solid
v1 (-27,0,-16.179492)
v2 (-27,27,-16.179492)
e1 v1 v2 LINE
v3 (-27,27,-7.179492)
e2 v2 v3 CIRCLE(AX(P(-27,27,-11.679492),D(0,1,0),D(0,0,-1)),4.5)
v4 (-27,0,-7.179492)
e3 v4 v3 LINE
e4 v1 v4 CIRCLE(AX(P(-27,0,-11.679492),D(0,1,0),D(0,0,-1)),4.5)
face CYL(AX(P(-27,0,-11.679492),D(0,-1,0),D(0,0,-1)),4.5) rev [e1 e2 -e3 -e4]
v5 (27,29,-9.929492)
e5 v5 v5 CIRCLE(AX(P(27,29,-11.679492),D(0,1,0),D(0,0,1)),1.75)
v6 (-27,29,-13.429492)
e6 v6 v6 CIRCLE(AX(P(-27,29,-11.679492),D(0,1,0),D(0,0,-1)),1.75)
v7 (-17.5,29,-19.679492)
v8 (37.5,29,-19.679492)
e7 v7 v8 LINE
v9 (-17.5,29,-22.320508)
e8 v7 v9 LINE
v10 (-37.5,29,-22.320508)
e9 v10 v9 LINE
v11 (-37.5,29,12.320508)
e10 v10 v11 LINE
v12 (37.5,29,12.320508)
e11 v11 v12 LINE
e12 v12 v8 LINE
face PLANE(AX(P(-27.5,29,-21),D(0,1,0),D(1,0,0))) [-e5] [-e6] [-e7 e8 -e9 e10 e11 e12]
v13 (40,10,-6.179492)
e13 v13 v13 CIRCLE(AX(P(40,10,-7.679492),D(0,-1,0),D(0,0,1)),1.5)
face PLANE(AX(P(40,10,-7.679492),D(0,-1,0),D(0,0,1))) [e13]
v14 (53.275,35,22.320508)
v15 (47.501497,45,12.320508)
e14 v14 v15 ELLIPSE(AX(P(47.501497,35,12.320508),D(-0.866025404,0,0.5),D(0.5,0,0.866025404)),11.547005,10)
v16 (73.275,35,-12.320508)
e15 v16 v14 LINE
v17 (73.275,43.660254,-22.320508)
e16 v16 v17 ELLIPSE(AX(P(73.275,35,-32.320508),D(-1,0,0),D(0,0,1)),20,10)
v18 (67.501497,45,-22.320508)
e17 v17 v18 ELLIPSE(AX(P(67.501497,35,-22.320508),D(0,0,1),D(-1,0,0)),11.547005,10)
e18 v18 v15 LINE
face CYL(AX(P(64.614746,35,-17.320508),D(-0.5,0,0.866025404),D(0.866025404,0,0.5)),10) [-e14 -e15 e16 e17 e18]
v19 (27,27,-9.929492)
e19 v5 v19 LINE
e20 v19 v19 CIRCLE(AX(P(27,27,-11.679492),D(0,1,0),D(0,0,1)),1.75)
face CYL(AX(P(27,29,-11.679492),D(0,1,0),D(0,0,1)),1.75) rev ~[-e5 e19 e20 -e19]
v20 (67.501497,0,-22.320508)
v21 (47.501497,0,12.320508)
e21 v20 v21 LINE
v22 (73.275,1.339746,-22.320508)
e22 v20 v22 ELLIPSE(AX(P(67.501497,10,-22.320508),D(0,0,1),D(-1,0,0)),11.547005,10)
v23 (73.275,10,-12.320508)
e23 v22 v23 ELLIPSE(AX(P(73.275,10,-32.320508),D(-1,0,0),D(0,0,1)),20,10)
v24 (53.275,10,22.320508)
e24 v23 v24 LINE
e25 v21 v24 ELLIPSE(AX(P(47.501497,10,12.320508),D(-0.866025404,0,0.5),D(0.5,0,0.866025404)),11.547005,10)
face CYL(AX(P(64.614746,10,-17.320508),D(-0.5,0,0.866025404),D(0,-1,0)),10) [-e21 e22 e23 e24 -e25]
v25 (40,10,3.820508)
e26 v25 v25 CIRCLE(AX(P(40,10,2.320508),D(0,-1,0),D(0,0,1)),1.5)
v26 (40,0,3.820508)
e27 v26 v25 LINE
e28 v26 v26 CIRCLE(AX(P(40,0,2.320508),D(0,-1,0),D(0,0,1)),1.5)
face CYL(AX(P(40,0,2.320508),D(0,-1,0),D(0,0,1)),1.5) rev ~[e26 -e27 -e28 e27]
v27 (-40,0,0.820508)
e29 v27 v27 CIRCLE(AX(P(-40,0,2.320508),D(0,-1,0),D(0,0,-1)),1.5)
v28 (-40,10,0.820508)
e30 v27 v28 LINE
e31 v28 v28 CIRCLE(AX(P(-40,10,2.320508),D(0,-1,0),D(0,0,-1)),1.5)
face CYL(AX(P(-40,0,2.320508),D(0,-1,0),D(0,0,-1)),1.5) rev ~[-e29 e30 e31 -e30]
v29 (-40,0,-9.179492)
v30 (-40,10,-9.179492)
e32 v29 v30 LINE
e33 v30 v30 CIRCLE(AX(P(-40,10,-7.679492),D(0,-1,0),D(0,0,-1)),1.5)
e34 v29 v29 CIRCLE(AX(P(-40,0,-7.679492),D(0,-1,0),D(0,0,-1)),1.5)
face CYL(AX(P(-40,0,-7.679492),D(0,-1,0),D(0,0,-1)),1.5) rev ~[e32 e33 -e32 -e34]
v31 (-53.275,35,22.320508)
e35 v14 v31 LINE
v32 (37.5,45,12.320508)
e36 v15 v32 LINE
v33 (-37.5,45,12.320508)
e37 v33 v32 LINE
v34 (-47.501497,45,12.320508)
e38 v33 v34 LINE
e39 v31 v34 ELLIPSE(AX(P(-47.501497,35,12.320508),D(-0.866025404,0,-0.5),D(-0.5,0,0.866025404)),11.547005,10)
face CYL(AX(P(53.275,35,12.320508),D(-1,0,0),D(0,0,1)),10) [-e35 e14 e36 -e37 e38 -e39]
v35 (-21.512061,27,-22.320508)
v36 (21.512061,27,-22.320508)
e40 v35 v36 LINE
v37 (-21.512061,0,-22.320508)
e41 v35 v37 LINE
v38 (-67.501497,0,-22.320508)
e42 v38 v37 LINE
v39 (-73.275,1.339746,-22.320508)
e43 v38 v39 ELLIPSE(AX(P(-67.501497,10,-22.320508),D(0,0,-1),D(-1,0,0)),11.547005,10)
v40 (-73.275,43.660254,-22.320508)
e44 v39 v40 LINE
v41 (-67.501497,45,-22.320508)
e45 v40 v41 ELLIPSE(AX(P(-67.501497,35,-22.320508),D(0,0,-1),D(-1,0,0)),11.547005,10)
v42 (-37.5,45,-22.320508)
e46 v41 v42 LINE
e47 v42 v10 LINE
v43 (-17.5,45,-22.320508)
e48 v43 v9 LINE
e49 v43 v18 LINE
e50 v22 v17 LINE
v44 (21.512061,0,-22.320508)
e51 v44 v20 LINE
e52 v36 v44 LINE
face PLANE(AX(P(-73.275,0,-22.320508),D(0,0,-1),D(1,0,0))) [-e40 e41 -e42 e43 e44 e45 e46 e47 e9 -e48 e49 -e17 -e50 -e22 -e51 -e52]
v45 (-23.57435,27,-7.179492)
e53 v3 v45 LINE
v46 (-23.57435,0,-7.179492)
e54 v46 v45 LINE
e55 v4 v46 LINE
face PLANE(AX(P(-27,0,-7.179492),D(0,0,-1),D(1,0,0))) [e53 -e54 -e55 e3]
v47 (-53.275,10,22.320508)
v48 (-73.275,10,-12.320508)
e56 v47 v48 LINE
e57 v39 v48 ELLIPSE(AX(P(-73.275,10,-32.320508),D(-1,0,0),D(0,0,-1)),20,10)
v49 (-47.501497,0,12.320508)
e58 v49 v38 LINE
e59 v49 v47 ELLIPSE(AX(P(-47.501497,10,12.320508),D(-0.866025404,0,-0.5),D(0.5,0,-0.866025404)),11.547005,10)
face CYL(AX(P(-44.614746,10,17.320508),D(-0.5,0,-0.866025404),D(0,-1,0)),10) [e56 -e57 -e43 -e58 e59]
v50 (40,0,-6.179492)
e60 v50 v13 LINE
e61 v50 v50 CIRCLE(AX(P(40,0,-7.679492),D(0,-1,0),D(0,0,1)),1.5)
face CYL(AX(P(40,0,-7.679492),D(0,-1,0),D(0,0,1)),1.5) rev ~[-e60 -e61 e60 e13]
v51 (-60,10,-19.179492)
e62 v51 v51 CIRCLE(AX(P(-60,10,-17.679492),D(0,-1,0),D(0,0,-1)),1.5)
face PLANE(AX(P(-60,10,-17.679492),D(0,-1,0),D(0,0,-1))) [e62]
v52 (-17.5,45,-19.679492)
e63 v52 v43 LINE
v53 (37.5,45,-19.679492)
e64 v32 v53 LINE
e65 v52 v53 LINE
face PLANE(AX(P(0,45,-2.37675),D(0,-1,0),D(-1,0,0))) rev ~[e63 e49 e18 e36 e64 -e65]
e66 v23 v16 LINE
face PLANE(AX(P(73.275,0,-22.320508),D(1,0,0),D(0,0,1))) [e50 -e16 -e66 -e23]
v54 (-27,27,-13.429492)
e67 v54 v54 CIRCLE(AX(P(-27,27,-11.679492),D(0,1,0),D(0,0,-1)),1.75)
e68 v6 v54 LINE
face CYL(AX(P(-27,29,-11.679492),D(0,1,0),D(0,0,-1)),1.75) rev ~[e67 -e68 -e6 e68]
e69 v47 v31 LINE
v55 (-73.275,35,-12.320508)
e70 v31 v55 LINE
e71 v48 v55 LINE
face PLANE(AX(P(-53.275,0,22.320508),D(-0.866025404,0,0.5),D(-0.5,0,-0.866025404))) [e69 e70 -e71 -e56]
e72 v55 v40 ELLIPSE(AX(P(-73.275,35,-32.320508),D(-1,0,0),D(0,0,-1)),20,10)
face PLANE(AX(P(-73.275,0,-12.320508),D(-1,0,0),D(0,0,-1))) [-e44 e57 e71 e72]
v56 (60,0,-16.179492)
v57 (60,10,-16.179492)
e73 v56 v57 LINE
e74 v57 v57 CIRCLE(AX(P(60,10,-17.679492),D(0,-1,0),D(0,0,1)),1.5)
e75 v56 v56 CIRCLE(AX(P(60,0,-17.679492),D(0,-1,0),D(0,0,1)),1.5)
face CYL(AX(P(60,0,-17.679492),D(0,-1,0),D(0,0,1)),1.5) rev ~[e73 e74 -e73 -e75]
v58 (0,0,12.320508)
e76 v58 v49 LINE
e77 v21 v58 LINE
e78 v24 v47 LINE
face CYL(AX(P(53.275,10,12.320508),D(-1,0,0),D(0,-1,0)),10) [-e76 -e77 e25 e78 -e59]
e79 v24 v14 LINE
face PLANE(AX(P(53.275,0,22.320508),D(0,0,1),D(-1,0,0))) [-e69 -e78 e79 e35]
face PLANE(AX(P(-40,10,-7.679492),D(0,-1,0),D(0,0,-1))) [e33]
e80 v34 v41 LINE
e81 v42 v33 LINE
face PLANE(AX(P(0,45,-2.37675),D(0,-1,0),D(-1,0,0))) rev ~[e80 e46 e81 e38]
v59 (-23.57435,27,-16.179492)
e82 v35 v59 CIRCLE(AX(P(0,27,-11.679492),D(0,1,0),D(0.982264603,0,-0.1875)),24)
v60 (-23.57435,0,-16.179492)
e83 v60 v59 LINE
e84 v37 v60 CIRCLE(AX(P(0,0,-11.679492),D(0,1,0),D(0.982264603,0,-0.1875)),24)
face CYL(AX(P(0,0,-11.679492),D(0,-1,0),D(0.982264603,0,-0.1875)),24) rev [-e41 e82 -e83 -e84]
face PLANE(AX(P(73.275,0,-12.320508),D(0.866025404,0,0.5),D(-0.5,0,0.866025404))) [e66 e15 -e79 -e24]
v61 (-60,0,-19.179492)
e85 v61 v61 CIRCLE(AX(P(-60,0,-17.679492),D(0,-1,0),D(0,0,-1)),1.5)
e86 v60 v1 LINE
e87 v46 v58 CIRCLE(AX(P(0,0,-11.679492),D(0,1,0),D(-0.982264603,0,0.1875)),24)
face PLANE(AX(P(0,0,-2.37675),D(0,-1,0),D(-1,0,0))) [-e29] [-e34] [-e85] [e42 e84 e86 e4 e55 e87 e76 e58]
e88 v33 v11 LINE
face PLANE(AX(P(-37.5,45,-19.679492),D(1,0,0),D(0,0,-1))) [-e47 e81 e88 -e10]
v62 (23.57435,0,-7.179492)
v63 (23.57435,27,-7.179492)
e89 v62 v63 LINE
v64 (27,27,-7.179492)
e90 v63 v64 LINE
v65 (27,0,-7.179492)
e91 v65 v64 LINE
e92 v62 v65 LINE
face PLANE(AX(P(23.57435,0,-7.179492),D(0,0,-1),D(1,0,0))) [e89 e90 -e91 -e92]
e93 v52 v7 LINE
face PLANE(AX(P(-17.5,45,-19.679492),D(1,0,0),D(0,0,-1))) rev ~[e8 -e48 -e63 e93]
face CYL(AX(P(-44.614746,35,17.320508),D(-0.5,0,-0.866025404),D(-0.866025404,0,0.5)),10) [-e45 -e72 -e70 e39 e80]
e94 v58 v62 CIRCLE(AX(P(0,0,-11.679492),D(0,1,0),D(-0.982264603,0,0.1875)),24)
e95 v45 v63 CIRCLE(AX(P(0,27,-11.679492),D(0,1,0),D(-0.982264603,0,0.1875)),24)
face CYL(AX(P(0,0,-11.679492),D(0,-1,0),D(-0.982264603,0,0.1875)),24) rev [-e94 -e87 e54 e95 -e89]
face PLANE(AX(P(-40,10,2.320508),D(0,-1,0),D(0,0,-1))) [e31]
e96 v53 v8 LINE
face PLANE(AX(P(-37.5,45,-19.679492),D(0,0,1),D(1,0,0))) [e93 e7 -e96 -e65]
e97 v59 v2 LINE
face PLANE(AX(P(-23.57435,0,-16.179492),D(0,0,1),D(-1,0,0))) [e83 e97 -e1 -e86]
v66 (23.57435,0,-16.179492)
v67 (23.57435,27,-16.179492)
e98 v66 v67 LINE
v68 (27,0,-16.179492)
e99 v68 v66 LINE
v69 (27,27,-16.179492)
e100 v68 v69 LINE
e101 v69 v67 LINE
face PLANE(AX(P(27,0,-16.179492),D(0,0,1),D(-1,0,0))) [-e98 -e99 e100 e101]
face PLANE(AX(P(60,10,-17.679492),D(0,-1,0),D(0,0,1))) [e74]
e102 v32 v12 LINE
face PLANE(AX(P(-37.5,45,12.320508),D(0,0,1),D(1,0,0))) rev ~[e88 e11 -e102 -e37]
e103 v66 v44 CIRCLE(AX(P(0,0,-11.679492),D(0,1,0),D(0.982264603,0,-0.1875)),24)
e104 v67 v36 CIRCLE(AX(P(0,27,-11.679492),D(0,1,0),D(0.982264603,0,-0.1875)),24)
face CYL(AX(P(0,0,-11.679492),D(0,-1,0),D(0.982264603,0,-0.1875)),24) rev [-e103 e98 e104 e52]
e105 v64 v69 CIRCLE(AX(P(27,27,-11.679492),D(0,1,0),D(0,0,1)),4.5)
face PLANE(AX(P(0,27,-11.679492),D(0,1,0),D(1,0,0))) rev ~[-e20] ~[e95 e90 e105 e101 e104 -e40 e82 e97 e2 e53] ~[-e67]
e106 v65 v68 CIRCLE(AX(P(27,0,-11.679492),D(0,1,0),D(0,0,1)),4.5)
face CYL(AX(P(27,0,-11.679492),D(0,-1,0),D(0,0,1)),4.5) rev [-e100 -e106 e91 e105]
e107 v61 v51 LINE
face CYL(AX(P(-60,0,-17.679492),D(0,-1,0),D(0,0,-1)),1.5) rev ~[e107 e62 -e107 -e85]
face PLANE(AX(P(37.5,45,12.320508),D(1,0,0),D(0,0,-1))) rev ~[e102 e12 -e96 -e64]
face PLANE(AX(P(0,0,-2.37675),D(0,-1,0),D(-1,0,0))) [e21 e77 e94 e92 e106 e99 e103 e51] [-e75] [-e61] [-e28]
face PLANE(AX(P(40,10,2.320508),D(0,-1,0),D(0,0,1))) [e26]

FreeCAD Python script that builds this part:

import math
import FreeCAD as App
import Part
import Sketcher

V = App.Vector
Q = App.Units.Quantity


def edges_at(feature, points):
    """Names of the edges that pass closest to the given points."""
    edges = feature.Shape.Edges
    near = lambda p: min(range(len(edges)), key=lambda i: edges[i].distToShape(Part.Vertex(*p))[0])
    return sorted({f"Edge{near(p) + 1}" for p in points})

doc = App.newDocument("Part")
body = doc.addObject("PartDesign::Body", "Body")

# Sketch on XZ plane
sketch1 = doc.addObject("Sketcher::SketchObject", "Sketch")
body.addObject(sketch1)
sketch1.AttachmentSupport = (doc.XZ_Plane, [""])
sketch1.MapMode = "FlatFace"
sketch1.addGeometry([
    Part.LineSegment(V(73, -22, 0), V(-73, -22, 0)),  # 0
    Part.LineSegment(V(-73, -22, 0), V(-73, -12, 0)),  # 1
    Part.LineSegment(V(-73, -12, 0), V(-53, 22, 0)),  # 2
    Part.LineSegment(V(-53, 22, 0), V(53, 22, 0)),  # 3
    Part.LineSegment(V(53, 22, 0), V(73, -12, 0)),  # 4
    Part.LineSegment(V(73, -12, 0), V(73, -22, 0)),  # 5
], False)
sketch1.addConstraint([
    Sketcher.Constraint("Coincident", 0, 2, 1, 1),
    Sketcher.Constraint("Coincident", 1, 2, 2, 1),
    Sketcher.Constraint("Coincident", 2, 2, 3, 1),
    Sketcher.Constraint("Coincident", 3, 2, 4, 1),
    Sketcher.Constraint("Coincident", 4, 2, 5, 1),
    Sketcher.Constraint("Coincident", 5, 2, 0, 1),
    Sketcher.Constraint("Horizontal", 0),
    Sketcher.Constraint("Vertical", 1),
    Sketcher.Constraint("Horizontal", 3),
    Sketcher.Constraint("Vertical", 5),
    Sketcher.Constraint("Symmetric", 1, 2, 4, 2, -2),
    Sketcher.Constraint("Equal", 2, 4),
    Sketcher.Constraint("DistanceY", 1, 1, 1, 2, Q("10 mm")),
    Sketcher.Constraint("Angle", 2, Q("60 deg")),
    Sketcher.Constraint("Distance", 2, Q("40 mm")),
    Sketcher.Constraint("DistanceX", 0, 2, 0, 1, Q("146.55 mm")),
    Sketcher.Constraint("DistanceY", 0, 2, -1, 1, Q("22.320508 mm")),
])
pad1 = doc.addObject("PartDesign::Pad", "Pad")
body.addObject(pad1)
pad1.Profile = sketch1
pad1.Length = 45
pad1.Reversed = True
doc.recompute()

fillet = doc.addObject("PartDesign::Fillet", "Fillet")
body.addObject(fillet)
fillet.Base = (pad1, edges_at(pad1, [(63.275, 45, 5), (0, 45, 22.321), (-63.275, 45, 5)]))
fillet.Radius = 10
doc.recompute()

fillet2 = doc.addObject("PartDesign::Fillet", "Fillet001")
body.addObject(fillet2)
fillet2.Base = (fillet, edges_at(fillet, [(-63.275, 0, 5), (63.275, 0, 5), (0, 0, 22.321)]))
fillet2.Radius = 10

# Sketch on XZ plane
sketch2 = doc.addObject("Sketcher::SketchObject", "Sketch001")
body.addObject(sketch2)
sketch2.AttachmentSupport = (doc.XZ_Plane, [""])
sketch2.MapMode = "FlatFace"
sketch2.addGeometry([
    Part.Circle(V(-40, 2.3, 0), V(0, 0, 1), 1.5),
    Part.Circle(V(40, 2.3, 0), V(0, 0, 1), 1.5),
    Part.Circle(V(-60, -17.7, 0), V(0, 0, 1), 1.5),
    Part.Circle(V(60, -17.7, 0), V(0, 0, 1), 1.5),
], False)
sketch2.addConstraint([
    Sketcher.Constraint("Equal", 0, 1),
    Sketcher.Constraint("Equal", 1, 2),
    Sketcher.Constraint("Equal", 2, 3),
    Sketcher.Constraint("Symmetric", 0, 3, 1, 3, -2),
    Sketcher.Constraint("Symmetric", 2, 3, 3, 3, -2),
    Sketcher.Constraint("Diameter", 0, Q("3 mm")),
    Sketcher.Constraint("DistanceX", 0, 3, -1, 1, Q("40 mm")),
    Sketcher.Constraint("DistanceX", 2, 3, -1, 1, Q("60 mm")),
    Sketcher.Constraint("DistanceY", 2, 3, 0, 3, Q("20 mm")),
    Sketcher.Constraint("DistanceY", -1, 1, 0, 3, Q("2.320508 mm")),
])
pocket1 = doc.addObject("PartDesign::Pocket", "Pocket")
body.addObject(pocket1)
pocket1.Profile = sketch2
pocket1.Length = 10

# Sketch on XZ plane
sketch3 = doc.addObject("Sketcher::SketchObject", "Sketch002")
body.addObject(sketch3)
sketch3.AttachmentSupport = (doc.XZ_Plane, [""])
sketch3.MapMode = "FlatFace"
sketch3.addGeometry([
    Part.Circle(V(-40, -7.7, 0), V(0, 0, 1), 1.5),
    Part.Circle(V(40, -7.7, 0), V(0, 0, 1), 1.5),
], False)
sketch3.addConstraint([
    Sketcher.Constraint("Equal", 0, 1),
    Sketcher.Constraint("Symmetric", 0, 3, 1, 3, -2),
    Sketcher.Constraint("Diameter", 0, Q("3 mm")),
    Sketcher.Constraint("DistanceX", 0, 3, -1, 1, Q("40 mm")),
    Sketcher.Constraint("DistanceY", 0, 3, -1, 1, Q("7.679492 mm")),
])
pocket2 = doc.addObject("PartDesign::Pocket", "Pocket001")
body.addObject(pocket2)
pocket2.Profile = sketch3
pocket2.Length = 10

# Sketch on XZ plane
sketch4 = doc.addObject("Sketcher::SketchObject", "Sketch003")
body.addObject(sketch4)
sketch4.AttachmentSupport = (doc.XZ_Plane, [""])
sketch4.MapMode = "FlatFace"
sketch4.addGeometry([
    Part.LineSegment(V(-23.6, -7.2, 0), V(-27, -7.2, 0)),  # 0
    Part.ArcOfCircle(Part.Circle(V(-27, -11.7, 0), V(0, 0, 1), 4.5), math.radians(90), math.radians(270)),  # 1
    Part.LineSegment(V(-27, -16.2, 0), V(-23.6, -16.2, 0)),  # 2
    Part.ArcOfCircle(Part.Circle(V(0, -11.7, 0), V(0, 0, 1), 24), math.radians(-169), math.radians(-11)),  # 3
    Part.LineSegment(V(23.6, -16.2, 0), V(27, -16.2, 0)),  # 4
    Part.ArcOfCircle(Part.Circle(V(27, -11.7, 0), V(0, 0, 1), 4.5), math.radians(-90), math.radians(90)),  # 5
    Part.LineSegment(V(27, -7.2, 0), V(23.6, -7.2, 0)),  # 6
    Part.ArcOfCircle(Part.Circle(V(0, -11.7, 0), V(0, 0, 1), 24), math.radians(11), math.radians(169)),  # 7
], False)
sketch4.addConstraint([
    Sketcher.Constraint("Tangent", 0, 2, 1, 1),
    Sketcher.Constraint("Tangent", 1, 2, 2, 1),
    Sketcher.Constraint("Coincident", 2, 2, 3, 1),
    Sketcher.Constraint("Coincident", 3, 2, 4, 1),
    Sketcher.Constraint("Tangent", 4, 2, 5, 1),
    Sketcher.Constraint("Tangent", 5, 2, 6, 1),
    Sketcher.Constraint("Coincident", 6, 2, 7, 1),
    Sketcher.Constraint("Coincident", 7, 2, 0, 1),
    Sketcher.Constraint("Horizontal", 0),
    Sketcher.Constraint("Horizontal", 2),
    Sketcher.Constraint("Horizontal", 4),
    Sketcher.Constraint("Horizontal", 6),
    Sketcher.Constraint("Coincident", 7, 3, 3, 3),
    Sketcher.Constraint("Equal", 1, 5),
    Sketcher.Constraint("Equal", 3, 7),
    Sketcher.Constraint("Symmetric", 1, 3, 5, 3, -2),
    Sketcher.Constraint("PointOnObject", 3, 3, -2),
    Sketcher.Constraint("Horizontal", 1, 3, 3, 3),
    Sketcher.Constraint("Radius", 3, Q("24 mm")),
    Sketcher.Constraint("Radius", 1, Q("4.5 mm")),
    Sketcher.Constraint("DistanceX", 1, 3, -1, 1, Q("27 mm")),
    Sketcher.Constraint("DistanceY", 1, 3, -1, 1, Q("11.679492 mm")),
])
pocket3 = doc.addObject("PartDesign::Pocket", "Pocket002")
body.addObject(pocket3)
pocket3.Profile = sketch4
pocket3.Length = 27

# Sketch on XZ plane
sketch5 = doc.addObject("Sketcher::SketchObject", "Sketch004")
body.addObject(sketch5)
sketch5.AttachmentSupport = (doc.XZ_Plane, [""])
sketch5.MapMode = "FlatFace"
sketch5.AttachmentOffset = App.Placement(V(0, 0, -45), App.Rotation())
sketch5.addGeometry([
    Part.LineSegment(V(-38, -20, 0), V(-38, 12, 0)),
    Part.LineSegment(V(-38, 12, 0), V(38, 12, 0)),
    Part.LineSegment(V(38, 12, 0), V(38, -20, 0)),
    Part.LineSegment(V(38, -20, 0), V(-38, -20, 0)),
], False)
sketch5.addConstraint([
    Sketcher.Constraint("Coincident", 0, 2, 1, 1),
    Sketcher.Constraint("Coincident", 1, 2, 2, 1),
    Sketcher.Constraint("Coincident", 2, 2, 3, 1),
    Sketcher.Constraint("Coincident", 3, 2, 0, 1),
    Sketcher.Constraint("Vertical", 0),
    Sketcher.Constraint("Horizontal", 1),
    Sketcher.Constraint("Vertical", 2),
    Sketcher.Constraint("Horizontal", 3),
    Sketcher.Constraint("DistanceX", 1, 1, 1, 2, Q("75 mm")),
    Sketcher.Constraint("DistanceY", 0, 1, 0, 2, Q("32 mm")),
    Sketcher.Constraint("DistanceX", 0, 2, -1, 1, Q("37.5 mm")),
    Sketcher.Constraint("DistanceY", -1, 1, 0, 2, Q("12.320508 mm")),
])
pocket4 = doc.addObject("PartDesign::Pocket", "Pocket003")
body.addObject(pocket4)
pocket4.Profile = sketch5
pocket4.Length = 16
pocket4.Reversed = True

# Sketch on XZ plane
sketch6 = doc.addObject("Sketcher::SketchObject", "Sketch005")
body.addObject(sketch6)
sketch6.AttachmentSupport = (doc.XZ_Plane, [""])
sketch6.MapMode = "FlatFace"
sketch6.AttachmentOffset = App.Placement(V(0, 0, -29), App.Rotation())
sketch6.addGeometry([
    Part.Circle(V(27, -11.7, 0), V(0, 0, 1), 1.8),
    Part.Circle(V(-27, -11.7, 0), V(0, 0, 1), 1.8),
], False)
sketch6.addConstraint([
    Sketcher.Constraint("Equal", 0, 1),
    Sketcher.Constraint("Symmetric", 0, 3, 1, 3, -2),
    Sketcher.Constraint("Diameter", 0, Q("3.5 mm")),
    Sketcher.Constraint("DistanceX", -1, 1, 0, 3, Q("27 mm")),
    Sketcher.Constraint("DistanceY", 0, 3, -1, 1, Q("11.679492 mm")),
])
pocket5 = doc.addObject("PartDesign::Pocket", "Pocket004")
body.addObject(pocket5)
pocket5.Profile = sketch6
pocket5.Length = 20
pocket5.Reversed = True

# Sketch on XZ plane
sketch7 = doc.addObject("Sketcher::SketchObject", "Sketch006")
body.addObject(sketch7)
sketch7.AttachmentSupport = (doc.XZ_Plane, [""])
sketch7.MapMode = "FlatFace"
sketch7.AttachmentOffset = App.Placement(V(0, 0, -45), App.Rotation())
sketch7.addGeometry([
    Part.LineSegment(V(-37.5, -22.3, 0), V(-37.5, -19.7, 0)),
    Part.LineSegment(V(-37.5, -19.7, 0), V(-17.5, -19.7, 0)),
    Part.LineSegment(V(-17.5, -19.7, 0), V(-17.5, -22.3, 0)),
    Part.LineSegment(V(-17.5, -22.3, 0), V(-37.5, -22.3, 0)),
], False)
sketch7.addConstraint([
    Sketcher.Constraint("Coincident", 0, 2, 1, 1),
    Sketcher.Constraint("Coincident", 1, 2, 2, 1),
    Sketcher.Constraint("Coincident", 2, 2, 3, 1),
    Sketcher.Constraint("Coincident", 3, 2, 0, 1),
    Sketcher.Constraint("Vertical", 0),
    Sketcher.Constraint("Horizontal", 1),
    Sketcher.Constraint("Vertical", 2),
    Sketcher.Constraint("Horizontal", 3),
    Sketcher.Constraint("DistanceX", 1, 1, 1, 2, Q("20 mm")),
    Sketcher.Constraint("DistanceX", 0, 2, -1, 1, Q("37.5 mm")),
    Sketcher.Constraint("DistanceY", 0, 1, 0, 2, Q("2.641016 mm")),
    Sketcher.Constraint("DistanceY", 0, 2, -1, 1, Q("19.679492 mm")),
])
pocket6 = doc.addObject("PartDesign::Pocket", "Pocket005")
body.addObject(pocket6)
pocket6.Profile = sketch7
pocket6.Length = 16
pocket6.Reversed = True

doc.recompute()
